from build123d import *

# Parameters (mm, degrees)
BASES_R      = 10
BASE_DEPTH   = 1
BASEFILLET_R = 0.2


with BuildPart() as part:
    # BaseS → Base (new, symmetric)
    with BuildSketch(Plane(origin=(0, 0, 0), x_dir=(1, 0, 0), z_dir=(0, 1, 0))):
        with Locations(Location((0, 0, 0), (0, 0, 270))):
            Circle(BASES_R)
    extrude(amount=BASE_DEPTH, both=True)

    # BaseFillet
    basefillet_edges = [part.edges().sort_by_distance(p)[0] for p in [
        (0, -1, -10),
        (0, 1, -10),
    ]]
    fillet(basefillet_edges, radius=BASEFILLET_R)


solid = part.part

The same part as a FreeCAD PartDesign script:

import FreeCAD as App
import Part
import Sketcher
from FreeCAD import Vector


def edges_at(feature, points):
    """Names of the edges that pass closest to the given points."""
    edges = feature.Shape.Edges
    near = lambda p: min(range(len(edges)), key=lambda i: edges[i].distToShape(Part.Vertex(*p))[0])
    return sorted({f"Edge{near(p) + 1}" for p in points})

doc = App.newDocument("Part")
body = doc.addObject("PartDesign::Body", "Body")

# Sketch on XZ plane
sketch1 = body.newObject("Sketcher::SketchObject", "Sketch")
sketch1.AttachmentSupport = (doc.getObject("XZ_Plane"), [""])
sketch1.MapMode = "FlatFace"
sketch1.addGeometry(Part.Circle(Vector(0, 0, 0), Vector(0, 0, 1), 10), False)
sketch1.addConstraint([
    Sketcher.Constraint("Coincident", 0, 3, -1, 1),
    Sketcher.Constraint("Diameter", 0, 20.0),
])
pad1 = body.newObject("PartDesign::Pad", "Pad")
pad1.Profile = sketch1
pad1.Length = 2
pad1.Midplane = True
doc.recompute()

fillet = body.newObject("PartDesign::Fillet", "Fillet")
fillet.Base = (pad1, edges_at(pad1, [(0, -1, -10), (0, 1, -10)]))
fillet.Radius = 0.2

doc.recompute()
